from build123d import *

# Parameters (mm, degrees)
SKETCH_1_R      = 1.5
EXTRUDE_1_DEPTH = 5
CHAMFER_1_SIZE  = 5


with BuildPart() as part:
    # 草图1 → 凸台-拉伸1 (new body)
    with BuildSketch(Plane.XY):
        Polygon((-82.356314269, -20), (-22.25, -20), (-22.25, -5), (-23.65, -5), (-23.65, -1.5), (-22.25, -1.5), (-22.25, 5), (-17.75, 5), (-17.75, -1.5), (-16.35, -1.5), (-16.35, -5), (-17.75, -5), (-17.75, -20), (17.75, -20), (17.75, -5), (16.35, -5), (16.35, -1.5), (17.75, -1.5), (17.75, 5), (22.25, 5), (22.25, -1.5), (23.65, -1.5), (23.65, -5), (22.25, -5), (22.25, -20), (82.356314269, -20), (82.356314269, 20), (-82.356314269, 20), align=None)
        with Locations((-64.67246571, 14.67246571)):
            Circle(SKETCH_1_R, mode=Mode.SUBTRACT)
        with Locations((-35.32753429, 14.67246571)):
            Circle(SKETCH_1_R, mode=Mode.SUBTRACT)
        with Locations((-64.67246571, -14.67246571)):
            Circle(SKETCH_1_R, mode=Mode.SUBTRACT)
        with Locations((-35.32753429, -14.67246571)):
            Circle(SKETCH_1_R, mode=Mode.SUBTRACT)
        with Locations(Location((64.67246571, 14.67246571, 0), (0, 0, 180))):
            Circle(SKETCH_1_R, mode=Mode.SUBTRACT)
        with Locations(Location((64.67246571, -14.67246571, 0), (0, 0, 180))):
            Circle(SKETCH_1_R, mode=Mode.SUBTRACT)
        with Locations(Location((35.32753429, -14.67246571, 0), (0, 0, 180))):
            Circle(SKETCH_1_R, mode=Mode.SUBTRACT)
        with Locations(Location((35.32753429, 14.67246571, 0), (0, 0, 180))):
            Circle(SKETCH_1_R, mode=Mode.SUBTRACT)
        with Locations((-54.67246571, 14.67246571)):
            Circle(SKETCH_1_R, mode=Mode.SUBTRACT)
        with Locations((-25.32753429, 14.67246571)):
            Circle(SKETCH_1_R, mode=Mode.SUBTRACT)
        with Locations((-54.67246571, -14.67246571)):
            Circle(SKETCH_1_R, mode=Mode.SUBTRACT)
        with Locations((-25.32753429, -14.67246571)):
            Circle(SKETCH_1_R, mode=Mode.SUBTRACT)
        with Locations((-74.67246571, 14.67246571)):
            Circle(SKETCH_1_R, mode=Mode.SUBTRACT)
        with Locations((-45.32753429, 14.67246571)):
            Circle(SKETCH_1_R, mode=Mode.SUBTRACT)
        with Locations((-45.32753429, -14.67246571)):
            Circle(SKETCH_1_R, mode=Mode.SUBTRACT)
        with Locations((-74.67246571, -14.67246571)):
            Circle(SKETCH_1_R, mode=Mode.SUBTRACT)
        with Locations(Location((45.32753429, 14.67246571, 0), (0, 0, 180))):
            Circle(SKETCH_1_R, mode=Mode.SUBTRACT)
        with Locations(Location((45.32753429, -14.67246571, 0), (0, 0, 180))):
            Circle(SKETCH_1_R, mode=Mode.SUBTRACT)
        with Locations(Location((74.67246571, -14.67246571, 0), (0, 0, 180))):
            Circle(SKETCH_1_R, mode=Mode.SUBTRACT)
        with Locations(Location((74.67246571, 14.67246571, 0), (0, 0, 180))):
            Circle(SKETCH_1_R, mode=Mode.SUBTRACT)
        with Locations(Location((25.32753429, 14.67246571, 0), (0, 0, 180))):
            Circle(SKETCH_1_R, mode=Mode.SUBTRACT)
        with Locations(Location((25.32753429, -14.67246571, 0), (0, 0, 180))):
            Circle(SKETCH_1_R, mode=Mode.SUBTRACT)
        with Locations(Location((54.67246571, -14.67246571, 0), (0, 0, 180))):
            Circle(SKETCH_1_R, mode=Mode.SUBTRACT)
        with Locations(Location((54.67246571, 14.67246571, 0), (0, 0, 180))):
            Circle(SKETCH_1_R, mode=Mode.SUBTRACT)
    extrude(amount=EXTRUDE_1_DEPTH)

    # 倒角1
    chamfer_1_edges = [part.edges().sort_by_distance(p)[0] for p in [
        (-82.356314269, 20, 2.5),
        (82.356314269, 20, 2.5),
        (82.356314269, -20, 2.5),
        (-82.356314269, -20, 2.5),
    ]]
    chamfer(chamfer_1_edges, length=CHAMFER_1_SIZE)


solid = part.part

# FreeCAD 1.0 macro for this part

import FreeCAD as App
import Part
import Sketcher

V = App.Vector


def edges_at(feature, points):
    """Names of the edges that pass closest to the given points."""
    edges = feature.Shape.Edges
    near = lambda p: min(range(len(edges)), key=lambda i: edges[i].distToShape(Part.Vertex(*p))[0])
    return sorted({f"Edge{near(p) + 1}" for p in points})


def add_polygon(sketch, points):
    """Adds a closed chain of lines whose ends are joined by coincident constraints."""
    first, n = sketch.GeometryCount, len(points)
    for a, b in zip(points, points[1:] + points[:1]):
        sketch.addGeometry(Part.LineSegment(App.Vector(*a, 0), App.Vector(*b, 0)), False)
    for i in range(n):
        sketch.addConstraint(Sketcher.Constraint("Coincident", first + i, 2, first + (i + 1) % n, 1))

doc = App.newDocument("Part")
body = doc.addObject("PartDesign::Body", "Body")

# Sketch on XY plane
sketch1 = body.newObject("Sketcher::SketchObject", "Sketch")
sketch1.AttachmentSupport = (doc.getObject("XY_Plane"), [""])
sketch1.MapMode = "FlatFace"
add_polygon(sketch1, [(-82.4, -20), (-22.2, -20), (-22.2, -5), (-23.6, -5), (-23.6, -1.5), (-22.2, -1.5), (-22.2, 5), (-17.8, 5), (-17.8, -1.5), (-16.4, -1.5), (-16.4, -5), (-17.8, -5), (-17.8, -20), (17.8, -20), (17.8, -5), (16.4, -5), (16.4, -1.5), (17.8, -1.5), (17.8, 5), (22.2, 5), (22.2, -1.5), (23.6, -1.5), (23.6, -5), (22.2, -5), (22.2, -20), (82.4, -20), (82.4, 20), (-82.4, 20)])  # lines 0-27
sketch1.addGeometry(Part.Circle(V(-74.7, -14.7, 0), V(0, 0, 1), 1.5), False)  # 28
sketch1.addGeometry(Part.Circle(V(-64.7, -14.7, 0), V(0, 0, 1), 1.5), False)  # 29
sketch1.addGeometry(Part.Circle(V(-54.7, -14.7, 0), V(0, 0, 1), 1.5), False)  # 30
sketch1.addGeometry(Part.Circle(V(-45.3, -14.7, 0), V(0, 0, 1), 1.5), False)  # 31
sketch1.addGeometry(Part.Circle(V(-35.3, -14.7, 0), V(0, 0, 1), 1.5), False)  # 32
sketch1.addGeometry(Part.Circle(V(-25.3, -14.7, 0), V(0, 0, 1), 1.5), False)  # 33
sketch1.addGeometry(Part.Circle(V(25.3, -14.7, 0), V(0, 0, 1), 1.5), False)  # 34
sketch1.addGeometry(Part.Circle(V(35.3, -14.7, 0), V(0, 0, 1), 1.5), False)  # 35
sketch1.addGeometry(Part.Circle(V(45.3, -14.7, 0), V(0, 0, 1), 1.5), False)  # 36
sketch1.addGeometry(Part.Circle(V(54.7, -14.7, 0), V(0, 0, 1), 1.5), False)  # 37
sketch1.addGeometry(Part.Circle(V(64.7, -14.7, 0), V(0, 0, 1), 1.5), False)  # 38
sketch1.addGeometry(Part.Circle(V(74.7, -14.7, 0), V(0, 0, 1), 1.5), False)  # 39
sketch1.addGeometry(Part.Circle(V(-74.7, 14.7, 0), V(0, 0, 1), 1.5), False)  # 40
sketch1.addGeometry(Part.Circle(V(-64.7, 14.7, 0), V(0, 0, 1), 1.5), False)  # 41
sketch1.addGeometry(Part.Circle(V(-54.7, 14.7, 0), V(0, 0, 1), 1.5), False)  # 42
sketch1.addGeometry(Part.Circle(V(-45.3, 14.7, 0), V(0, 0, 1), 1.5), False)  # 43
sketch1.addGeometry(Part.Circle(V(-35.3, 14.7, 0), V(0, 0, 1), 1.5), False)  # 44
sketch1.addGeometry(Part.Circle(V(-25.3, 14.7, 0), V(0, 0, 1), 1.5), False)  # 45
sketch1.addGeometry(Part.Circle(V(25.3, 14.7, 0), V(0, 0, 1), 1.5), False)  # 46
sketch1.addGeometry(Part.Circle(V(35.3, 14.7, 0), V(0, 0, 1), 1.5), False)  # 47
sketch1.addGeometry(Part.Circle(V(45.3, 14.7, 0), V(0, 0, 1), 1.5), False)  # 48
sketch1.addGeometry(Part.Circle(V(54.7, 14.7, 0), V(0, 0, 1), 1.5), False)  # 49
sketch1.addGeometry(Part.Circle(V(64.7, 14.7, 0), V(0, 0, 1), 1.5), False)  # 50
sketch1.addGeometry(Part.Circle(V(74.7, 14.7, 0), V(0, 0, 1), 1.5), False)  # 51
sketch1.addConstraint(Sketcher.Constraint("Horizontal", 0))
sketch1.addConstraint(Sketcher.Constraint("Vertical", 1))
sketch1.addConstraint(Sketcher.Constraint("Horizontal", 2))
sketch1.addConstraint(Sketcher.Constraint("Vertical", 3))
sketch1.addConstraint(Sketcher.Constraint("Horizontal", 4))
sketch1.addConstraint(Sketcher.Constraint("Vertical", 5))
sketch1.addConstraint(Sketcher.Constraint("Horizontal", 6))
sketch1.addConstraint(Sketcher.Constraint("Vertical", 7))
sketch1.addConstraint(Sketcher.Constraint("Horizontal", 8))
sketch1.addConstraint(Sketcher.Constraint("Vertical", 9))
sketch1.addConstraint(Sketcher.Constraint("Horizontal", 10))
sketch1.addConstraint(Sketcher.Constraint("Vertical", 11))
sketch1.addConstraint(Sketcher.Constraint("Horizontal", 12))
sketch1.addConstraint(Sketcher.Constraint("Vertical", 13))
sketch1.addConstraint(Sketcher.Constraint("Horizontal", 14))
sketch1.addConstraint(Sketcher.Constraint("Vertical", 15))
sketch1.addConstraint(Sketcher.Constraint("Horizontal", 16))
sketch1.addConstraint(Sketcher.Constraint("Vertical", 17))
sketch1.addConstraint(Sketcher.Constraint("Horizontal", 18))
sketch1.addConstraint(Sketcher.Constraint("Vertical", 19))
sketch1.addConstraint(Sketcher.Constraint("Horizontal", 20))
sketch1.addConstraint(Sketcher.Constraint("Vertical", 21))
sketch1.addConstraint(Sketcher.Constraint("Horizontal", 22))
sketch1.addConstraint(Sketcher.Constraint("Vertical", 23))
sketch1.addConstraint(Sketcher.Constraint("Horizontal", 24))
sketch1.addConstraint(Sketcher.Constraint("Vertical", 25))
sketch1.addConstraint(Sketcher.Constraint("Horizontal", 26))
sketch1.addConstraint(Sketcher.Constraint("Vertical", 27))
sketch1.addConstraint(Sketcher.Constraint("Equal", 28, 29))
sketch1.addConstraint(Sketcher.Constraint("Equal", 29, 30))
sketch1.addConstraint(Sketcher.Constraint("Equal", 30, 31))
sketch1.addConstraint(Sketcher.Constraint("Equal", 31, 32))
sketch1.addConstraint(Sketcher.Constraint("Equal", 32, 33))
sketch1.addConstraint(Sketcher.Constraint("Equal", 33, 34))
sketch1.addConstraint(Sketcher.Constraint("Equal", 34, 35))
sketch1.addConstraint(Sketcher.Constraint("Equal", 35, 36))
sketch1.addConstraint(Sketcher.Constraint("Equal", 36, 37))
sketch1.addConstraint(Sketcher.Constraint("Equal", 37, 38))
sketch1.addConstraint(Sketcher.Constraint("Equal", 38, 39))
sketch1.addConstraint(Sketcher.Constraint("Equal", 39, 40))
sketch1.addConstraint(Sketcher.Constraint("Equal", 40, 41))
sketch1.addConstraint(Sketcher.Constraint("Equal", 41, 42))
sketch1.addConstraint(Sketcher.Constraint("Equal", 42, 43))
sketch1.addConstraint(Sketcher.Constraint("Equal", 43, 44))
sketch1.addConstraint(Sketcher.Constraint("Equal", 44, 45))
sketch1.addConstraint(Sketcher.Constraint("Equal", 45, 46))
sketch1.addConstraint(Sketcher.Constraint("Equal", 46, 47))
sketch1.addConstraint(Sketcher.Constraint("Equal", 47, 48))
sketch1.addConstraint(Sketcher.Constraint("Equal", 48, 49))
sketch1.addConstraint(Sketcher.Constraint("Equal", 49, 50))
sketch1.addConstraint(Sketcher.Constraint("Equal", 50, 51))
sketch1.addConstraint(Sketcher.Constraint("Symmetric", 39, 3, 40, 3, -1, 1))
sketch1.addConstraint(Sketcher.Constraint("Symmetric", 38, 3, 41, 3, -1, 1))
sketch1.addConstraint(Sketcher.Constraint("Symmetric", 37, 3, 42, 3, -1, 1))
sketch1.addConstraint(Sketcher.Constraint("Symmetric", 36, 3, 43, 3, -1, 1))
sketch1.addConstraint(Sketcher.Constraint("Symmetric", 35, 3, 44, 3, -1, 1))
sketch1.addConstraint(Sketcher.Constraint("Symmetric", 34, 3, 45, 3, -1, 1))
sketch1.addConstraint(Sketcher.Constraint("Symmetric", 33, 3, 46, 3, -1, 1))
sketch1.addConstraint(Sketcher.Constraint("Symmetric", 32, 3, 47, 3, -1, 1))
sketch1.addConstraint(Sketcher.Constraint("Symmetric", 31, 3, 48, 3, -1, 1))
sketch1.addConstraint(Sketcher.Constraint("Symmetric", 30, 3, 49, 3, -1, 1))
sketch1.addConstraint(Sketcher.Constraint("Symmetric", 29, 3, 50, 3, -1, 1))
sketch1.addConstraint(Sketcher.Constraint("Symmetric", 28, 3, 51, 3, -1, 1))
sketch1.addConstraint(Sketcher.Constraint("Symmetric", 6, 2, 13, 2, -1, 1))
sketch1.addConstraint(Sketcher.Constraint("Symmetric", 10, 2, 17, 2, -1, 1))
sketch1.addConstraint(Sketcher.Constraint("Symmetric", 1, 2, 18, 2, -1, 1))
sketch1.addConstraint(Sketcher.Constraint("Symmetric", 5, 2, 22, 2, -1, 1))
sketch1.addConstraint(Sketcher.Constraint("Symmetric", 24, 2, 26, 2, -1, 1))
sketch1.addConstraint(Sketcher.Constraint("Symmetric", 33, 3, 34, 3, -2))
sketch1.addConstraint(Sketcher.Constraint("Symmetric", 32, 3, 35, 3, -2))
sketch1.addConstraint(Sketcher.Constraint("Symmetric", 31, 3, 36, 3, -2))
sketch1.addConstraint(Sketcher.Constraint("Symmetric", 30, 3, 37, 3, -2))
sketch1.addConstraint(Sketcher.Constraint("Symmetric", 29, 3, 38, 3, -2))
sketch1.addConstraint(Sketcher.Constraint("Symmetric", 28, 3, 39, 3, -2))
sketch1.addConstraint(Sketcher.Constraint("Symmetric", 10, 2, 13, 2, -2))
sketch1.addConstraint(Sketcher.Constraint("Symmetric", 8, 2, 15, 2, -2))
sketch1.addConstraint(Sketcher.Constraint("Symmetric", 4, 2, 19, 2, -2))
sketch1.addConstraint(Sketcher.Constraint("Horizontal", 28, 3, 29, 3))
sketch1.addConstraint(Sketcher.Constraint("Horizontal", 29, 3, 30, 3))
sketch1.addConstraint(Sketcher.Constraint("Horizontal", 30, 3, 31, 3))
sketch1.addConstraint(Sketcher.Constraint("Horizontal", 31, 3, 32, 3))
sketch1.addConstraint(Sketcher.Constraint("Horizontal", 32, 3, 33, 3))
sketch1.addConstraint(Sketcher.Constraint("Horizontal", 4, 2, 7, 2))
sketch1.addConstraint(Sketcher.Constraint("Horizontal", 0, 2, 11, 2))
sketch1.addConstraint(Sketcher.Constraint("Horizontal", 12, 2, 23, 2))
sketch1.addConstraint(Sketcher.Constraint("Equal", 4, 8))
sketch1.addConstraint(Sketcher.Constraint("Equal", 16, 20))
sketch1.addConstraint(Sketcher.Constraint("Diameter", 28, 3.0))
sketch1.addConstraint(Sketcher.Constraint("DistanceY", 1, 1, 1, 2, 15.0))
sketch1.addConstraint(Sketcher.Constraint("DistanceY", 25, 1, 25, 2, 40.0))
sketch1.addConstraint(Sketcher.Constraint("DistanceX", 2, 2, 2, 1, 1.4))
sketch1.addConstraint(Sketcher.Constraint("DistanceX", 6, 1, 6, 2, 4.5))
sketch1.addConstraint(Sketcher.Constraint("DistanceX", 12, 1, 12, 2, 35.5))
sketch1.addConstraint(Sketcher.Constraint("DistanceY", 3, 1, 3, 2, 3.5))
sketch1.addConstraint(Sketcher.Constraint("DistanceX", 28, 3, 29, 3, 10.0))
sketch1.addConstraint(Sketcher.Constraint("DistanceX", 29, 3, 30, 3, 10.0))
sketch1.addConstraint(Sketcher.Constraint("DistanceX", 31, 3, 32, 3, 10.0))
sketch1.addConstraint(Sketcher.Constraint("DistanceX", 32, 3, 33, 3, 10.0))
sketch1.addConstraint(Sketcher.Constraint("DistanceX", 30, 3, 34, 3, 80.0))
sketch1.addConstraint(Sketcher.Constraint("DistanceX", 26, 2, 26, 1, 164.712629))
sketch1.addConstraint(Sketcher.Constraint("DistanceX", 30, 3, 31, 3, 9.344931))
sketch1.addConstraint(Sketcher.Constraint("DistanceY", 28, 3, 40, 3, 29.344931))
pad1 = body.newObject("PartDesign::Pad", "Pad")
pad1.Profile = sketch1
pad1.Length = 5
doc.recompute()

chamfer = body.newObject("PartDesign::Chamfer", "Chamfer")
chamfer.Base = (pad1, edges_at(pad1, [
    (-82.356, 20, 2.5),
    (82.356, 20, 2.5),
    (82.356, -20, 2.5),
    (-82.356, -20, 2.5),
]))
chamfer.Size = 5

doc.recompute()
